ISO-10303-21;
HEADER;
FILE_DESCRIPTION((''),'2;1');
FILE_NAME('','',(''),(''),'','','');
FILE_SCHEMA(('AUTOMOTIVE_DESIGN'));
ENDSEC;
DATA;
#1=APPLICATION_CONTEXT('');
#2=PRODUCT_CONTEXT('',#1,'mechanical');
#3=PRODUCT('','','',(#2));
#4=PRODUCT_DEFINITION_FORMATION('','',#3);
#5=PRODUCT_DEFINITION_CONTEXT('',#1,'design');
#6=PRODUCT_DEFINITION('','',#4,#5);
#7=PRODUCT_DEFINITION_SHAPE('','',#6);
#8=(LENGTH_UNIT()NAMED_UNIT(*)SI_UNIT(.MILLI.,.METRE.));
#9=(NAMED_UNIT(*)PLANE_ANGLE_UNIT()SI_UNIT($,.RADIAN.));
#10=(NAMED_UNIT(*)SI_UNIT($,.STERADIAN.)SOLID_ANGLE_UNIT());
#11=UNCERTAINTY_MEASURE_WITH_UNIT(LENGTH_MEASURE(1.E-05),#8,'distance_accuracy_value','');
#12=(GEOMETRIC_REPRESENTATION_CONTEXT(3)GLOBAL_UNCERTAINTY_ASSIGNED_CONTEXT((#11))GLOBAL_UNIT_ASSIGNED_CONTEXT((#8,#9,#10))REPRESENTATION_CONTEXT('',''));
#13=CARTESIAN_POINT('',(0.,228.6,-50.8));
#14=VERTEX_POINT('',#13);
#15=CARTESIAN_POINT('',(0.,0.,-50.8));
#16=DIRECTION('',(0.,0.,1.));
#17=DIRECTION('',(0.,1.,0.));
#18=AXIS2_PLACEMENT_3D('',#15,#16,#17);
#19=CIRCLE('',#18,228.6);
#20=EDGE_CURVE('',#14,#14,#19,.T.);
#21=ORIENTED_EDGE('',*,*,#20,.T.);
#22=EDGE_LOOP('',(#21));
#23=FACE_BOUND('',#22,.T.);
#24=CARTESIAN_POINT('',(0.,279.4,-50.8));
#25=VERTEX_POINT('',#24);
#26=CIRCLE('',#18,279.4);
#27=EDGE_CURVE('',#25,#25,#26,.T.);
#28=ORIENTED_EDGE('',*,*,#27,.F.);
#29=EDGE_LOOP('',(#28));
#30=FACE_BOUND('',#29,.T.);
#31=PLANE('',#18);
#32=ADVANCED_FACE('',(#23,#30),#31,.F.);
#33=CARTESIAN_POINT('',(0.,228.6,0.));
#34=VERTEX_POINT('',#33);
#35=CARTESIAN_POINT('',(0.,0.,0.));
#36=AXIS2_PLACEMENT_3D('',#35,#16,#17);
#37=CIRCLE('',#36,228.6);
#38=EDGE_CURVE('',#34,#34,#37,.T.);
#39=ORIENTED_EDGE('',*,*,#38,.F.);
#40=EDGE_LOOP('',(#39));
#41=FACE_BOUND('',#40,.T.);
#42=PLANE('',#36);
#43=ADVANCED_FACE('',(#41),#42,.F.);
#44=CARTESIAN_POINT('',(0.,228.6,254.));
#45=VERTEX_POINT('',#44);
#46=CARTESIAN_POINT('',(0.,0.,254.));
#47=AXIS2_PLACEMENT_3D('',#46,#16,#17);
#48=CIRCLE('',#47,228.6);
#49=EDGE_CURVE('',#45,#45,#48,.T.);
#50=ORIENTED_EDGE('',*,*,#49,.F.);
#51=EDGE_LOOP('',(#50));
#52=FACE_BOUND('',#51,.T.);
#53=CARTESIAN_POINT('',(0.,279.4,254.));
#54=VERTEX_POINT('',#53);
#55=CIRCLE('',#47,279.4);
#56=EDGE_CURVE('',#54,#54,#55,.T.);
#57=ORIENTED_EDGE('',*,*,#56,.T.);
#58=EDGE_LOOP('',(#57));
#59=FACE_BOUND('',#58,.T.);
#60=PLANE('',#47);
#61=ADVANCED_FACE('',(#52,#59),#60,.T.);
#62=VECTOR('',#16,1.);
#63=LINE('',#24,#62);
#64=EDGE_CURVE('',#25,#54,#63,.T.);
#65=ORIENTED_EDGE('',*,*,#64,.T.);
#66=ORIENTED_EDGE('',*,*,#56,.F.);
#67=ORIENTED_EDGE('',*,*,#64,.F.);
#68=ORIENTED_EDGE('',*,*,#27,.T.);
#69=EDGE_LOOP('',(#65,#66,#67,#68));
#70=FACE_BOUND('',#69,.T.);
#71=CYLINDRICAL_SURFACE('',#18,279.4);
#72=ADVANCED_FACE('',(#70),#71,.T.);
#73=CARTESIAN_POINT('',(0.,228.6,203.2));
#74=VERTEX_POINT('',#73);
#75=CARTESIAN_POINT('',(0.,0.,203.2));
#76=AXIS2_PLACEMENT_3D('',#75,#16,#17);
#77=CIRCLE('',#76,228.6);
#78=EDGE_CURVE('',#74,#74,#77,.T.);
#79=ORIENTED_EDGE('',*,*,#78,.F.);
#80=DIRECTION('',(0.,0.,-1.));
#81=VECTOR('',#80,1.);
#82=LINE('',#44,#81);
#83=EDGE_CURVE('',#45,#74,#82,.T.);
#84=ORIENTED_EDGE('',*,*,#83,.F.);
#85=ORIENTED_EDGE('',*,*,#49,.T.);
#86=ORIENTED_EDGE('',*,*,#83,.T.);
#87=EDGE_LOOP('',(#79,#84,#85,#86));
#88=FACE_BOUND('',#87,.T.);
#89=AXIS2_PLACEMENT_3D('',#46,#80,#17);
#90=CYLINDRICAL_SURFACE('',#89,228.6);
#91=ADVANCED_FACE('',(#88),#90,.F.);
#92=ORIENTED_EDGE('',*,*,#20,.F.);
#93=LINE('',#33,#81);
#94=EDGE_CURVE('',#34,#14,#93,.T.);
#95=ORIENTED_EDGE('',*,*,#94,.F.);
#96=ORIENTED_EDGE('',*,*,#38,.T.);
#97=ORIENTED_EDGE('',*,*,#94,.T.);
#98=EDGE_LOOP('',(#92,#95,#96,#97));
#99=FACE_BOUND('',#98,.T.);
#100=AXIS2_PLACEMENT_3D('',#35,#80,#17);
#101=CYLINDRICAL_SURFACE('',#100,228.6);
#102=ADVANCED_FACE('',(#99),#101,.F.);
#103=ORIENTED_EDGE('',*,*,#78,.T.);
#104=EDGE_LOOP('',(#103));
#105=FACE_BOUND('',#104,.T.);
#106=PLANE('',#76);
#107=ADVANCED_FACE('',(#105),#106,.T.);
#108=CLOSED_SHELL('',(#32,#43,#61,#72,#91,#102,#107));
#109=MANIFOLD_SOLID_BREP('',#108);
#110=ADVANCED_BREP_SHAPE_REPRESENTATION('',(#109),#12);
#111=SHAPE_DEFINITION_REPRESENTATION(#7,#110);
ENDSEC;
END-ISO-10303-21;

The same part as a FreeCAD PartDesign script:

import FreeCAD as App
import Part
import Sketcher
from FreeCAD import Vector
Q = App.Units.Quantity

doc = App.newDocument("Part")
body = doc.addObject("PartDesign::Body", "Body")

# Sketch on YZ plane
sketch1 = body.newObject("Sketcher::SketchObject", "Sketch")
sketch1.AttachmentSupport = (doc.getObject("YZ_Plane"), [""])
sketch1.MapMode = "FlatFace"
sketch1.addGeometry(Part.LineSegment(Vector(0, 203, 0), Vector(0, 0, 0)), False)
sketch1.addGeometry(Part.LineSegment(Vector(0, 0, 0), Vector(229, 0, 0)), False)
sketch1.addGeometry(Part.LineSegment(Vector(229, 0, 0), Vector(229, -51, 0)), False)
sketch1.addGeometry(Part.LineSegment(Vector(229, -51, 0), Vector(279, -51, 0)), False)
sketch1.addGeometry(Part.LineSegment(Vector(279, -51, 0), Vector(279, 254, 0)), False)
sketch1.addGeometry(Part.LineSegment(Vector(279, 254, 0), Vector(229, 254, 0)), False)
sketch1.addGeometry(Part.LineSegment(Vector(229, 254, 0), Vector(229, 203, 0)), False)
sketch1.addGeometry(Part.LineSegment(Vector(229, 203, 0), Vector(0, 203, 0)), False)
sketch1.addConstraint(Sketcher.Constraint("Coincident", 0, 2, 1, 1))
sketch1.addConstraint(Sketcher.Constraint("Coincident", 1, 2, 2, 1))
sketch1.addConstraint(Sketcher.Constraint("Coincident", 2, 2, 3, 1))
sketch1.addConstraint(Sketcher.Constraint("Coincident", 3, 2, 4, 1))
sketch1.addConstraint(Sketcher.Constraint("Coincident", 4, 2, 5, 1))
sketch1.addConstraint(Sketcher.Constraint("Coincident", 5, 2, 6, 1))
sketch1.addConstraint(Sketcher.Constraint("Coincident", 6, 2, 7, 1))
sketch1.addConstraint(Sketcher.Constraint("Coincident", 7, 2, 0, 1))
sketch1.addConstraint(Sketcher.Constraint("Vertical", 0))
sketch1.addConstraint(Sketcher.Constraint("Horizontal", 1))
sketch1.addConstraint(Sketcher.Constraint("Vertical", 2))
sketch1.addConstraint(Sketcher.Constraint("Horizontal", 3))
sketch1.addConstraint(Sketcher.Constraint("Vertical", 4))
sketch1.addConstraint(Sketcher.Constraint("Horizontal", 5))
sketch1.addConstraint(Sketcher.Constraint("Vertical", 6))
sketch1.addConstraint(Sketcher.Constraint("Horizontal", 7))
sketch1.addConstraint(Sketcher.Constraint("Coincident", 0, 2, -1, 1))
sketch1.addConstraint(Sketcher.Constraint("Vertical", 2, 2, 5, 2))
sketch1.addConstraint(Sketcher.Constraint("Equal", 5, 2))
sketch1.addConstraint(Sketcher.Constraint("Equal", 2, 6))
sketch1.addConstraint(Sketcher.Constraint("DistanceX", 1, 1, 1, 2, Q("9 in")))
sketch1.addConstraint(Sketcher.Constraint("DistanceX", 3, 1, 3, 2, Q("2 in")))
sketch1.addConstraint(Sketcher.Constraint("DistanceY", 0, 2, 0, 1, Q("8 in")))
revolution = body.newObject("PartDesign::Revolution", "Revolution")
revolution.Profile = sketch1
revolution.ReferenceAxis = (sketch1, ["V_Axis"])
revolution.Angle = 360

doc.recompute()
